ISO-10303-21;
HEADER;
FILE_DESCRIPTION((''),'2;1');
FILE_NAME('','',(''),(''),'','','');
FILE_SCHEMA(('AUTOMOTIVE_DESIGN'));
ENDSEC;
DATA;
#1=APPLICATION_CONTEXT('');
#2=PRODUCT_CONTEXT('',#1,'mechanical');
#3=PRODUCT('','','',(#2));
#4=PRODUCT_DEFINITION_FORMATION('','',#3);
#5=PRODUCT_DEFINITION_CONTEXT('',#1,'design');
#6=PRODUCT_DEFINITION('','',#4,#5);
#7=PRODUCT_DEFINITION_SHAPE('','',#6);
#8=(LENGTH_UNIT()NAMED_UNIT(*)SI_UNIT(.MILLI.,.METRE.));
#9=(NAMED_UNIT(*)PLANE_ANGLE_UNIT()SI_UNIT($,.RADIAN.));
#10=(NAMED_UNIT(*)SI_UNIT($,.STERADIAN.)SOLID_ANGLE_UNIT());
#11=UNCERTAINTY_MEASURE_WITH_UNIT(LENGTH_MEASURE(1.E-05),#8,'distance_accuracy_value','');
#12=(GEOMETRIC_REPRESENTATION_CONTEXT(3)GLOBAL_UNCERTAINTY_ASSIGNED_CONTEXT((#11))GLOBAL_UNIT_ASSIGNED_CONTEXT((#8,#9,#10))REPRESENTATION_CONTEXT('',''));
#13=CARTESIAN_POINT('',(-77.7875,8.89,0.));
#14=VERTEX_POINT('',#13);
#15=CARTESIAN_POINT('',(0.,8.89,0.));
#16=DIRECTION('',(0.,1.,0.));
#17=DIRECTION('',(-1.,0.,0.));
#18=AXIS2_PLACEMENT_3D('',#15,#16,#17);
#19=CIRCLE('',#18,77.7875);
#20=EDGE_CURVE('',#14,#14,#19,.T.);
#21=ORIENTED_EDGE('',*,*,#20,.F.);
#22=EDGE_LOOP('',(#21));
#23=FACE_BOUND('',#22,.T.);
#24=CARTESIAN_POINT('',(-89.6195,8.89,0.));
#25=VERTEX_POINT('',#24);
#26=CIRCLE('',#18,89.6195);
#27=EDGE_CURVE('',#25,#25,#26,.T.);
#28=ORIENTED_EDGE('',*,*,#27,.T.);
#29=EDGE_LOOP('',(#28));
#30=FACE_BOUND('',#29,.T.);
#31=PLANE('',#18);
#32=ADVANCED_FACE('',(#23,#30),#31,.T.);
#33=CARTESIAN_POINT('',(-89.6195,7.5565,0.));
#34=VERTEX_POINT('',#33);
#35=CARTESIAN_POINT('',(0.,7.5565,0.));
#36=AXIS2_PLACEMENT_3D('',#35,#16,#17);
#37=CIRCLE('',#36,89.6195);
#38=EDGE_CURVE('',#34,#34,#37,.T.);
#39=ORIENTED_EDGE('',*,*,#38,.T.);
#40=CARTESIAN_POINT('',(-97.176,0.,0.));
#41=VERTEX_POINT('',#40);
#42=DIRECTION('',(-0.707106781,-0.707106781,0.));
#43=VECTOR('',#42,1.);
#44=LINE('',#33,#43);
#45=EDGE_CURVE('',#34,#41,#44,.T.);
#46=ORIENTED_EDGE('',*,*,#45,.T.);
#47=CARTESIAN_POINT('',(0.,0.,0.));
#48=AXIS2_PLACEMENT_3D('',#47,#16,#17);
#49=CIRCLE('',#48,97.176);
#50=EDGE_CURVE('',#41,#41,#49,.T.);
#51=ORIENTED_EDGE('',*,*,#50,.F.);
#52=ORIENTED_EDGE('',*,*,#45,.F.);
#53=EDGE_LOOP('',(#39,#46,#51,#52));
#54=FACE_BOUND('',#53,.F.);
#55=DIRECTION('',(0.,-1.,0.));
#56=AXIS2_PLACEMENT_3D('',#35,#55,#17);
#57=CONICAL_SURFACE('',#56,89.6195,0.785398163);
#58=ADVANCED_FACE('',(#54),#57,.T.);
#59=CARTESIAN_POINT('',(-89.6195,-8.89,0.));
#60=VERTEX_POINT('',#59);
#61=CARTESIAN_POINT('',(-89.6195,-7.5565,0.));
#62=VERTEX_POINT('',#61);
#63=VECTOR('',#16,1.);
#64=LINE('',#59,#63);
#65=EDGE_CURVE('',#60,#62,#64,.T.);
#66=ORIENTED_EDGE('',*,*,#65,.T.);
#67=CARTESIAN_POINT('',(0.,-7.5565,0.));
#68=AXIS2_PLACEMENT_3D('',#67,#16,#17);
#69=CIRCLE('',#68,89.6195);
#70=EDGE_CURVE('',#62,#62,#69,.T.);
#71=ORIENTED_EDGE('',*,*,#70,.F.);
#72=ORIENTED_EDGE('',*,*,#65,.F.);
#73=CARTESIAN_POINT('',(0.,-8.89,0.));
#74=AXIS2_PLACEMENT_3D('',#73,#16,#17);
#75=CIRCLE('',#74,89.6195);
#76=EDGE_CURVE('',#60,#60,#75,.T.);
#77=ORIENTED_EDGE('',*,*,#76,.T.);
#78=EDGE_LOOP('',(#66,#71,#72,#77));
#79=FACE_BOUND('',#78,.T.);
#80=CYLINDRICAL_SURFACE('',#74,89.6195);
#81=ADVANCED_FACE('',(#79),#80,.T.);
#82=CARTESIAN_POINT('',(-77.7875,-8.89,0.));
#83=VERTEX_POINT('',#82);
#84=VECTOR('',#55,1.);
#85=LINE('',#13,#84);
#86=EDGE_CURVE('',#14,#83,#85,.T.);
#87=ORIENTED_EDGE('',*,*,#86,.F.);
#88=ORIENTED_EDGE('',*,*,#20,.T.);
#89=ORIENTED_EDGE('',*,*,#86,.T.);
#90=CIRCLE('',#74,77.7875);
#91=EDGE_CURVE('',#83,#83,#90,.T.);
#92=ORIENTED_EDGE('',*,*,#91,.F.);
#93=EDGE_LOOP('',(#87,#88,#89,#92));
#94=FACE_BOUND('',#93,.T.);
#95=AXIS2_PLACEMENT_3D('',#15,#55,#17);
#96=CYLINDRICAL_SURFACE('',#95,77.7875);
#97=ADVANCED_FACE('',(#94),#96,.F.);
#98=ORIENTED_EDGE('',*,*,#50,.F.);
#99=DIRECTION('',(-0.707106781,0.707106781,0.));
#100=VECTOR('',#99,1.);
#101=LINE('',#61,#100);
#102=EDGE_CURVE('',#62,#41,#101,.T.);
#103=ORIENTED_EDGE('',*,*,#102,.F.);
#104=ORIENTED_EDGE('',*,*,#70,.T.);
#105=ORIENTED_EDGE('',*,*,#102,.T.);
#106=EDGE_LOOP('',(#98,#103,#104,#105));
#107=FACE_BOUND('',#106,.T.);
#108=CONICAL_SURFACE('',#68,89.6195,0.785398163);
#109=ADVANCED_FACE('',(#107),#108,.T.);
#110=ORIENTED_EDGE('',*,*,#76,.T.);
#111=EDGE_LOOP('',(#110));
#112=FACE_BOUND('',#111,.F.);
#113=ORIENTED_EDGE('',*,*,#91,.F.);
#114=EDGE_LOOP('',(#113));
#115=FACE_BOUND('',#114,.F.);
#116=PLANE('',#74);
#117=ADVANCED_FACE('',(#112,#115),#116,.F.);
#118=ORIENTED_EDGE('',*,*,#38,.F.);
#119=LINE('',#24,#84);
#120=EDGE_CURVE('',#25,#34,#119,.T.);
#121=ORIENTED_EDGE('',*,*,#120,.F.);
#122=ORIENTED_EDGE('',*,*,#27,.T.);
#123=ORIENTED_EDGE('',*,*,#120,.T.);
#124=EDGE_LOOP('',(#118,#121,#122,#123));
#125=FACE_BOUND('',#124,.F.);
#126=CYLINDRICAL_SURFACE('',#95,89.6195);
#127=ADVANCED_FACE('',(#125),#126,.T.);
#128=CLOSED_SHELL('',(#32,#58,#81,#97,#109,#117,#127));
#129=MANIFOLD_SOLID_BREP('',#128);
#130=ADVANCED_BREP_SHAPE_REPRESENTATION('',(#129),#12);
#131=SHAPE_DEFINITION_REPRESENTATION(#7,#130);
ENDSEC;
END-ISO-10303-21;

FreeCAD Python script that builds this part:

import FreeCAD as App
import Part
import Sketcher

V = App.Vector
Q = App.Units.Quantity

doc = App.newDocument("Part")
body = doc.addObject("PartDesign::Body", "Body")

# Sketch on XY plane
sketch1 = body.newObject("Sketcher::SketchObject", "Sketch")
sketch1.AttachmentSupport = (doc.getObject("XY_Plane"), [""])
sketch1.MapMode = "FlatFace"
sketch1.addGeometry(Part.LineSegment(V(-77.8, 8.9, 0), V(-89.6, 8.9, 0)), False)
sketch1.addGeometry(Part.LineSegment(V(-89.6, 8.9, 0), V(-89.6, 7.6, 0)), False)
sketch1.addGeometry(Part.LineSegment(V(-89.6, 7.6, 0), V(-97.2, 0, 0)), False)
sketch1.addGeometry(Part.LineSegment(V(-97.2, 0, 0), V(-89.6, -7.6, 0)), False)
sketch1.addGeometry(Part.LineSegment(V(-89.6, -7.6, 0), V(-89.6, -8.9, 0)), False)
sketch1.addGeometry(Part.LineSegment(V(-89.6, -8.9, 0), V(-77.8, -8.9, 0)), False)
sketch1.addGeometry(Part.LineSegment(V(-77.8, -8.9, 0), V(-77.8, 8.9, 0)), False)
sketch1.addConstraint(Sketcher.Constraint("Coincident", 0, 2, 1, 1))
sketch1.addConstraint(Sketcher.Constraint("Coincident", 1, 2, 2, 1))
sketch1.addConstraint(Sketcher.Constraint("Coincident", 2, 2, 3, 1))
sketch1.addConstraint(Sketcher.Constraint("Coincident", 3, 2, 4, 1))
sketch1.addConstraint(Sketcher.Constraint("Coincident", 4, 2, 5, 1))
sketch1.addConstraint(Sketcher.Constraint("Coincident", 5, 2, 6, 1))
sketch1.addConstraint(Sketcher.Constraint("Coincident", 6, 2, 0, 1))
sketch1.addConstraint(Sketcher.Constraint("Horizontal", 0))
sketch1.addConstraint(Sketcher.Constraint("Vertical", 1))
sketch1.addConstraint(Sketcher.Constraint("Vertical", 4))
sketch1.addConstraint(Sketcher.Constraint("Horizontal", 5))
sketch1.addConstraint(Sketcher.Constraint("Vertical", 6))
sketch1.addConstraint(Sketcher.Constraint("Symmetric", 1, 2, 3, 2, -1))
sketch1.addConstraint(Sketcher.Constraint("PointOnObject", 2, 2, -1))
sketch1.addConstraint(Sketcher.Constraint("Perpendicular", 2, 3))
sketch1.addConstraint(Sketcher.Constraint("Equal", 1, 4))
sketch1.addConstraint(Sketcher.Constraint("DistanceY", 6, 1, 6, 2, Q("0.7 in")))
sketch1.addConstraint(Sketcher.Constraint("DistanceY", 1, 2, 1, 1, Q("0.0525 in")))
sketch1.addConstraint(Sketcher.Constraint("DistanceX", 5, 2, -1, 1, Q("3.0625 in")))
sketch1.addConstraint(Sketcher.Constraint("DistanceX", 0, 2, 0, 1, Q("11.832 mm")))
revolution = body.newObject("PartDesign::Revolution", "Revolution")
revolution.Profile = sketch1
revolution.ReferenceAxis = (sketch1, ["V_Axis"])
revolution.Angle = 360

doc.recompute()
